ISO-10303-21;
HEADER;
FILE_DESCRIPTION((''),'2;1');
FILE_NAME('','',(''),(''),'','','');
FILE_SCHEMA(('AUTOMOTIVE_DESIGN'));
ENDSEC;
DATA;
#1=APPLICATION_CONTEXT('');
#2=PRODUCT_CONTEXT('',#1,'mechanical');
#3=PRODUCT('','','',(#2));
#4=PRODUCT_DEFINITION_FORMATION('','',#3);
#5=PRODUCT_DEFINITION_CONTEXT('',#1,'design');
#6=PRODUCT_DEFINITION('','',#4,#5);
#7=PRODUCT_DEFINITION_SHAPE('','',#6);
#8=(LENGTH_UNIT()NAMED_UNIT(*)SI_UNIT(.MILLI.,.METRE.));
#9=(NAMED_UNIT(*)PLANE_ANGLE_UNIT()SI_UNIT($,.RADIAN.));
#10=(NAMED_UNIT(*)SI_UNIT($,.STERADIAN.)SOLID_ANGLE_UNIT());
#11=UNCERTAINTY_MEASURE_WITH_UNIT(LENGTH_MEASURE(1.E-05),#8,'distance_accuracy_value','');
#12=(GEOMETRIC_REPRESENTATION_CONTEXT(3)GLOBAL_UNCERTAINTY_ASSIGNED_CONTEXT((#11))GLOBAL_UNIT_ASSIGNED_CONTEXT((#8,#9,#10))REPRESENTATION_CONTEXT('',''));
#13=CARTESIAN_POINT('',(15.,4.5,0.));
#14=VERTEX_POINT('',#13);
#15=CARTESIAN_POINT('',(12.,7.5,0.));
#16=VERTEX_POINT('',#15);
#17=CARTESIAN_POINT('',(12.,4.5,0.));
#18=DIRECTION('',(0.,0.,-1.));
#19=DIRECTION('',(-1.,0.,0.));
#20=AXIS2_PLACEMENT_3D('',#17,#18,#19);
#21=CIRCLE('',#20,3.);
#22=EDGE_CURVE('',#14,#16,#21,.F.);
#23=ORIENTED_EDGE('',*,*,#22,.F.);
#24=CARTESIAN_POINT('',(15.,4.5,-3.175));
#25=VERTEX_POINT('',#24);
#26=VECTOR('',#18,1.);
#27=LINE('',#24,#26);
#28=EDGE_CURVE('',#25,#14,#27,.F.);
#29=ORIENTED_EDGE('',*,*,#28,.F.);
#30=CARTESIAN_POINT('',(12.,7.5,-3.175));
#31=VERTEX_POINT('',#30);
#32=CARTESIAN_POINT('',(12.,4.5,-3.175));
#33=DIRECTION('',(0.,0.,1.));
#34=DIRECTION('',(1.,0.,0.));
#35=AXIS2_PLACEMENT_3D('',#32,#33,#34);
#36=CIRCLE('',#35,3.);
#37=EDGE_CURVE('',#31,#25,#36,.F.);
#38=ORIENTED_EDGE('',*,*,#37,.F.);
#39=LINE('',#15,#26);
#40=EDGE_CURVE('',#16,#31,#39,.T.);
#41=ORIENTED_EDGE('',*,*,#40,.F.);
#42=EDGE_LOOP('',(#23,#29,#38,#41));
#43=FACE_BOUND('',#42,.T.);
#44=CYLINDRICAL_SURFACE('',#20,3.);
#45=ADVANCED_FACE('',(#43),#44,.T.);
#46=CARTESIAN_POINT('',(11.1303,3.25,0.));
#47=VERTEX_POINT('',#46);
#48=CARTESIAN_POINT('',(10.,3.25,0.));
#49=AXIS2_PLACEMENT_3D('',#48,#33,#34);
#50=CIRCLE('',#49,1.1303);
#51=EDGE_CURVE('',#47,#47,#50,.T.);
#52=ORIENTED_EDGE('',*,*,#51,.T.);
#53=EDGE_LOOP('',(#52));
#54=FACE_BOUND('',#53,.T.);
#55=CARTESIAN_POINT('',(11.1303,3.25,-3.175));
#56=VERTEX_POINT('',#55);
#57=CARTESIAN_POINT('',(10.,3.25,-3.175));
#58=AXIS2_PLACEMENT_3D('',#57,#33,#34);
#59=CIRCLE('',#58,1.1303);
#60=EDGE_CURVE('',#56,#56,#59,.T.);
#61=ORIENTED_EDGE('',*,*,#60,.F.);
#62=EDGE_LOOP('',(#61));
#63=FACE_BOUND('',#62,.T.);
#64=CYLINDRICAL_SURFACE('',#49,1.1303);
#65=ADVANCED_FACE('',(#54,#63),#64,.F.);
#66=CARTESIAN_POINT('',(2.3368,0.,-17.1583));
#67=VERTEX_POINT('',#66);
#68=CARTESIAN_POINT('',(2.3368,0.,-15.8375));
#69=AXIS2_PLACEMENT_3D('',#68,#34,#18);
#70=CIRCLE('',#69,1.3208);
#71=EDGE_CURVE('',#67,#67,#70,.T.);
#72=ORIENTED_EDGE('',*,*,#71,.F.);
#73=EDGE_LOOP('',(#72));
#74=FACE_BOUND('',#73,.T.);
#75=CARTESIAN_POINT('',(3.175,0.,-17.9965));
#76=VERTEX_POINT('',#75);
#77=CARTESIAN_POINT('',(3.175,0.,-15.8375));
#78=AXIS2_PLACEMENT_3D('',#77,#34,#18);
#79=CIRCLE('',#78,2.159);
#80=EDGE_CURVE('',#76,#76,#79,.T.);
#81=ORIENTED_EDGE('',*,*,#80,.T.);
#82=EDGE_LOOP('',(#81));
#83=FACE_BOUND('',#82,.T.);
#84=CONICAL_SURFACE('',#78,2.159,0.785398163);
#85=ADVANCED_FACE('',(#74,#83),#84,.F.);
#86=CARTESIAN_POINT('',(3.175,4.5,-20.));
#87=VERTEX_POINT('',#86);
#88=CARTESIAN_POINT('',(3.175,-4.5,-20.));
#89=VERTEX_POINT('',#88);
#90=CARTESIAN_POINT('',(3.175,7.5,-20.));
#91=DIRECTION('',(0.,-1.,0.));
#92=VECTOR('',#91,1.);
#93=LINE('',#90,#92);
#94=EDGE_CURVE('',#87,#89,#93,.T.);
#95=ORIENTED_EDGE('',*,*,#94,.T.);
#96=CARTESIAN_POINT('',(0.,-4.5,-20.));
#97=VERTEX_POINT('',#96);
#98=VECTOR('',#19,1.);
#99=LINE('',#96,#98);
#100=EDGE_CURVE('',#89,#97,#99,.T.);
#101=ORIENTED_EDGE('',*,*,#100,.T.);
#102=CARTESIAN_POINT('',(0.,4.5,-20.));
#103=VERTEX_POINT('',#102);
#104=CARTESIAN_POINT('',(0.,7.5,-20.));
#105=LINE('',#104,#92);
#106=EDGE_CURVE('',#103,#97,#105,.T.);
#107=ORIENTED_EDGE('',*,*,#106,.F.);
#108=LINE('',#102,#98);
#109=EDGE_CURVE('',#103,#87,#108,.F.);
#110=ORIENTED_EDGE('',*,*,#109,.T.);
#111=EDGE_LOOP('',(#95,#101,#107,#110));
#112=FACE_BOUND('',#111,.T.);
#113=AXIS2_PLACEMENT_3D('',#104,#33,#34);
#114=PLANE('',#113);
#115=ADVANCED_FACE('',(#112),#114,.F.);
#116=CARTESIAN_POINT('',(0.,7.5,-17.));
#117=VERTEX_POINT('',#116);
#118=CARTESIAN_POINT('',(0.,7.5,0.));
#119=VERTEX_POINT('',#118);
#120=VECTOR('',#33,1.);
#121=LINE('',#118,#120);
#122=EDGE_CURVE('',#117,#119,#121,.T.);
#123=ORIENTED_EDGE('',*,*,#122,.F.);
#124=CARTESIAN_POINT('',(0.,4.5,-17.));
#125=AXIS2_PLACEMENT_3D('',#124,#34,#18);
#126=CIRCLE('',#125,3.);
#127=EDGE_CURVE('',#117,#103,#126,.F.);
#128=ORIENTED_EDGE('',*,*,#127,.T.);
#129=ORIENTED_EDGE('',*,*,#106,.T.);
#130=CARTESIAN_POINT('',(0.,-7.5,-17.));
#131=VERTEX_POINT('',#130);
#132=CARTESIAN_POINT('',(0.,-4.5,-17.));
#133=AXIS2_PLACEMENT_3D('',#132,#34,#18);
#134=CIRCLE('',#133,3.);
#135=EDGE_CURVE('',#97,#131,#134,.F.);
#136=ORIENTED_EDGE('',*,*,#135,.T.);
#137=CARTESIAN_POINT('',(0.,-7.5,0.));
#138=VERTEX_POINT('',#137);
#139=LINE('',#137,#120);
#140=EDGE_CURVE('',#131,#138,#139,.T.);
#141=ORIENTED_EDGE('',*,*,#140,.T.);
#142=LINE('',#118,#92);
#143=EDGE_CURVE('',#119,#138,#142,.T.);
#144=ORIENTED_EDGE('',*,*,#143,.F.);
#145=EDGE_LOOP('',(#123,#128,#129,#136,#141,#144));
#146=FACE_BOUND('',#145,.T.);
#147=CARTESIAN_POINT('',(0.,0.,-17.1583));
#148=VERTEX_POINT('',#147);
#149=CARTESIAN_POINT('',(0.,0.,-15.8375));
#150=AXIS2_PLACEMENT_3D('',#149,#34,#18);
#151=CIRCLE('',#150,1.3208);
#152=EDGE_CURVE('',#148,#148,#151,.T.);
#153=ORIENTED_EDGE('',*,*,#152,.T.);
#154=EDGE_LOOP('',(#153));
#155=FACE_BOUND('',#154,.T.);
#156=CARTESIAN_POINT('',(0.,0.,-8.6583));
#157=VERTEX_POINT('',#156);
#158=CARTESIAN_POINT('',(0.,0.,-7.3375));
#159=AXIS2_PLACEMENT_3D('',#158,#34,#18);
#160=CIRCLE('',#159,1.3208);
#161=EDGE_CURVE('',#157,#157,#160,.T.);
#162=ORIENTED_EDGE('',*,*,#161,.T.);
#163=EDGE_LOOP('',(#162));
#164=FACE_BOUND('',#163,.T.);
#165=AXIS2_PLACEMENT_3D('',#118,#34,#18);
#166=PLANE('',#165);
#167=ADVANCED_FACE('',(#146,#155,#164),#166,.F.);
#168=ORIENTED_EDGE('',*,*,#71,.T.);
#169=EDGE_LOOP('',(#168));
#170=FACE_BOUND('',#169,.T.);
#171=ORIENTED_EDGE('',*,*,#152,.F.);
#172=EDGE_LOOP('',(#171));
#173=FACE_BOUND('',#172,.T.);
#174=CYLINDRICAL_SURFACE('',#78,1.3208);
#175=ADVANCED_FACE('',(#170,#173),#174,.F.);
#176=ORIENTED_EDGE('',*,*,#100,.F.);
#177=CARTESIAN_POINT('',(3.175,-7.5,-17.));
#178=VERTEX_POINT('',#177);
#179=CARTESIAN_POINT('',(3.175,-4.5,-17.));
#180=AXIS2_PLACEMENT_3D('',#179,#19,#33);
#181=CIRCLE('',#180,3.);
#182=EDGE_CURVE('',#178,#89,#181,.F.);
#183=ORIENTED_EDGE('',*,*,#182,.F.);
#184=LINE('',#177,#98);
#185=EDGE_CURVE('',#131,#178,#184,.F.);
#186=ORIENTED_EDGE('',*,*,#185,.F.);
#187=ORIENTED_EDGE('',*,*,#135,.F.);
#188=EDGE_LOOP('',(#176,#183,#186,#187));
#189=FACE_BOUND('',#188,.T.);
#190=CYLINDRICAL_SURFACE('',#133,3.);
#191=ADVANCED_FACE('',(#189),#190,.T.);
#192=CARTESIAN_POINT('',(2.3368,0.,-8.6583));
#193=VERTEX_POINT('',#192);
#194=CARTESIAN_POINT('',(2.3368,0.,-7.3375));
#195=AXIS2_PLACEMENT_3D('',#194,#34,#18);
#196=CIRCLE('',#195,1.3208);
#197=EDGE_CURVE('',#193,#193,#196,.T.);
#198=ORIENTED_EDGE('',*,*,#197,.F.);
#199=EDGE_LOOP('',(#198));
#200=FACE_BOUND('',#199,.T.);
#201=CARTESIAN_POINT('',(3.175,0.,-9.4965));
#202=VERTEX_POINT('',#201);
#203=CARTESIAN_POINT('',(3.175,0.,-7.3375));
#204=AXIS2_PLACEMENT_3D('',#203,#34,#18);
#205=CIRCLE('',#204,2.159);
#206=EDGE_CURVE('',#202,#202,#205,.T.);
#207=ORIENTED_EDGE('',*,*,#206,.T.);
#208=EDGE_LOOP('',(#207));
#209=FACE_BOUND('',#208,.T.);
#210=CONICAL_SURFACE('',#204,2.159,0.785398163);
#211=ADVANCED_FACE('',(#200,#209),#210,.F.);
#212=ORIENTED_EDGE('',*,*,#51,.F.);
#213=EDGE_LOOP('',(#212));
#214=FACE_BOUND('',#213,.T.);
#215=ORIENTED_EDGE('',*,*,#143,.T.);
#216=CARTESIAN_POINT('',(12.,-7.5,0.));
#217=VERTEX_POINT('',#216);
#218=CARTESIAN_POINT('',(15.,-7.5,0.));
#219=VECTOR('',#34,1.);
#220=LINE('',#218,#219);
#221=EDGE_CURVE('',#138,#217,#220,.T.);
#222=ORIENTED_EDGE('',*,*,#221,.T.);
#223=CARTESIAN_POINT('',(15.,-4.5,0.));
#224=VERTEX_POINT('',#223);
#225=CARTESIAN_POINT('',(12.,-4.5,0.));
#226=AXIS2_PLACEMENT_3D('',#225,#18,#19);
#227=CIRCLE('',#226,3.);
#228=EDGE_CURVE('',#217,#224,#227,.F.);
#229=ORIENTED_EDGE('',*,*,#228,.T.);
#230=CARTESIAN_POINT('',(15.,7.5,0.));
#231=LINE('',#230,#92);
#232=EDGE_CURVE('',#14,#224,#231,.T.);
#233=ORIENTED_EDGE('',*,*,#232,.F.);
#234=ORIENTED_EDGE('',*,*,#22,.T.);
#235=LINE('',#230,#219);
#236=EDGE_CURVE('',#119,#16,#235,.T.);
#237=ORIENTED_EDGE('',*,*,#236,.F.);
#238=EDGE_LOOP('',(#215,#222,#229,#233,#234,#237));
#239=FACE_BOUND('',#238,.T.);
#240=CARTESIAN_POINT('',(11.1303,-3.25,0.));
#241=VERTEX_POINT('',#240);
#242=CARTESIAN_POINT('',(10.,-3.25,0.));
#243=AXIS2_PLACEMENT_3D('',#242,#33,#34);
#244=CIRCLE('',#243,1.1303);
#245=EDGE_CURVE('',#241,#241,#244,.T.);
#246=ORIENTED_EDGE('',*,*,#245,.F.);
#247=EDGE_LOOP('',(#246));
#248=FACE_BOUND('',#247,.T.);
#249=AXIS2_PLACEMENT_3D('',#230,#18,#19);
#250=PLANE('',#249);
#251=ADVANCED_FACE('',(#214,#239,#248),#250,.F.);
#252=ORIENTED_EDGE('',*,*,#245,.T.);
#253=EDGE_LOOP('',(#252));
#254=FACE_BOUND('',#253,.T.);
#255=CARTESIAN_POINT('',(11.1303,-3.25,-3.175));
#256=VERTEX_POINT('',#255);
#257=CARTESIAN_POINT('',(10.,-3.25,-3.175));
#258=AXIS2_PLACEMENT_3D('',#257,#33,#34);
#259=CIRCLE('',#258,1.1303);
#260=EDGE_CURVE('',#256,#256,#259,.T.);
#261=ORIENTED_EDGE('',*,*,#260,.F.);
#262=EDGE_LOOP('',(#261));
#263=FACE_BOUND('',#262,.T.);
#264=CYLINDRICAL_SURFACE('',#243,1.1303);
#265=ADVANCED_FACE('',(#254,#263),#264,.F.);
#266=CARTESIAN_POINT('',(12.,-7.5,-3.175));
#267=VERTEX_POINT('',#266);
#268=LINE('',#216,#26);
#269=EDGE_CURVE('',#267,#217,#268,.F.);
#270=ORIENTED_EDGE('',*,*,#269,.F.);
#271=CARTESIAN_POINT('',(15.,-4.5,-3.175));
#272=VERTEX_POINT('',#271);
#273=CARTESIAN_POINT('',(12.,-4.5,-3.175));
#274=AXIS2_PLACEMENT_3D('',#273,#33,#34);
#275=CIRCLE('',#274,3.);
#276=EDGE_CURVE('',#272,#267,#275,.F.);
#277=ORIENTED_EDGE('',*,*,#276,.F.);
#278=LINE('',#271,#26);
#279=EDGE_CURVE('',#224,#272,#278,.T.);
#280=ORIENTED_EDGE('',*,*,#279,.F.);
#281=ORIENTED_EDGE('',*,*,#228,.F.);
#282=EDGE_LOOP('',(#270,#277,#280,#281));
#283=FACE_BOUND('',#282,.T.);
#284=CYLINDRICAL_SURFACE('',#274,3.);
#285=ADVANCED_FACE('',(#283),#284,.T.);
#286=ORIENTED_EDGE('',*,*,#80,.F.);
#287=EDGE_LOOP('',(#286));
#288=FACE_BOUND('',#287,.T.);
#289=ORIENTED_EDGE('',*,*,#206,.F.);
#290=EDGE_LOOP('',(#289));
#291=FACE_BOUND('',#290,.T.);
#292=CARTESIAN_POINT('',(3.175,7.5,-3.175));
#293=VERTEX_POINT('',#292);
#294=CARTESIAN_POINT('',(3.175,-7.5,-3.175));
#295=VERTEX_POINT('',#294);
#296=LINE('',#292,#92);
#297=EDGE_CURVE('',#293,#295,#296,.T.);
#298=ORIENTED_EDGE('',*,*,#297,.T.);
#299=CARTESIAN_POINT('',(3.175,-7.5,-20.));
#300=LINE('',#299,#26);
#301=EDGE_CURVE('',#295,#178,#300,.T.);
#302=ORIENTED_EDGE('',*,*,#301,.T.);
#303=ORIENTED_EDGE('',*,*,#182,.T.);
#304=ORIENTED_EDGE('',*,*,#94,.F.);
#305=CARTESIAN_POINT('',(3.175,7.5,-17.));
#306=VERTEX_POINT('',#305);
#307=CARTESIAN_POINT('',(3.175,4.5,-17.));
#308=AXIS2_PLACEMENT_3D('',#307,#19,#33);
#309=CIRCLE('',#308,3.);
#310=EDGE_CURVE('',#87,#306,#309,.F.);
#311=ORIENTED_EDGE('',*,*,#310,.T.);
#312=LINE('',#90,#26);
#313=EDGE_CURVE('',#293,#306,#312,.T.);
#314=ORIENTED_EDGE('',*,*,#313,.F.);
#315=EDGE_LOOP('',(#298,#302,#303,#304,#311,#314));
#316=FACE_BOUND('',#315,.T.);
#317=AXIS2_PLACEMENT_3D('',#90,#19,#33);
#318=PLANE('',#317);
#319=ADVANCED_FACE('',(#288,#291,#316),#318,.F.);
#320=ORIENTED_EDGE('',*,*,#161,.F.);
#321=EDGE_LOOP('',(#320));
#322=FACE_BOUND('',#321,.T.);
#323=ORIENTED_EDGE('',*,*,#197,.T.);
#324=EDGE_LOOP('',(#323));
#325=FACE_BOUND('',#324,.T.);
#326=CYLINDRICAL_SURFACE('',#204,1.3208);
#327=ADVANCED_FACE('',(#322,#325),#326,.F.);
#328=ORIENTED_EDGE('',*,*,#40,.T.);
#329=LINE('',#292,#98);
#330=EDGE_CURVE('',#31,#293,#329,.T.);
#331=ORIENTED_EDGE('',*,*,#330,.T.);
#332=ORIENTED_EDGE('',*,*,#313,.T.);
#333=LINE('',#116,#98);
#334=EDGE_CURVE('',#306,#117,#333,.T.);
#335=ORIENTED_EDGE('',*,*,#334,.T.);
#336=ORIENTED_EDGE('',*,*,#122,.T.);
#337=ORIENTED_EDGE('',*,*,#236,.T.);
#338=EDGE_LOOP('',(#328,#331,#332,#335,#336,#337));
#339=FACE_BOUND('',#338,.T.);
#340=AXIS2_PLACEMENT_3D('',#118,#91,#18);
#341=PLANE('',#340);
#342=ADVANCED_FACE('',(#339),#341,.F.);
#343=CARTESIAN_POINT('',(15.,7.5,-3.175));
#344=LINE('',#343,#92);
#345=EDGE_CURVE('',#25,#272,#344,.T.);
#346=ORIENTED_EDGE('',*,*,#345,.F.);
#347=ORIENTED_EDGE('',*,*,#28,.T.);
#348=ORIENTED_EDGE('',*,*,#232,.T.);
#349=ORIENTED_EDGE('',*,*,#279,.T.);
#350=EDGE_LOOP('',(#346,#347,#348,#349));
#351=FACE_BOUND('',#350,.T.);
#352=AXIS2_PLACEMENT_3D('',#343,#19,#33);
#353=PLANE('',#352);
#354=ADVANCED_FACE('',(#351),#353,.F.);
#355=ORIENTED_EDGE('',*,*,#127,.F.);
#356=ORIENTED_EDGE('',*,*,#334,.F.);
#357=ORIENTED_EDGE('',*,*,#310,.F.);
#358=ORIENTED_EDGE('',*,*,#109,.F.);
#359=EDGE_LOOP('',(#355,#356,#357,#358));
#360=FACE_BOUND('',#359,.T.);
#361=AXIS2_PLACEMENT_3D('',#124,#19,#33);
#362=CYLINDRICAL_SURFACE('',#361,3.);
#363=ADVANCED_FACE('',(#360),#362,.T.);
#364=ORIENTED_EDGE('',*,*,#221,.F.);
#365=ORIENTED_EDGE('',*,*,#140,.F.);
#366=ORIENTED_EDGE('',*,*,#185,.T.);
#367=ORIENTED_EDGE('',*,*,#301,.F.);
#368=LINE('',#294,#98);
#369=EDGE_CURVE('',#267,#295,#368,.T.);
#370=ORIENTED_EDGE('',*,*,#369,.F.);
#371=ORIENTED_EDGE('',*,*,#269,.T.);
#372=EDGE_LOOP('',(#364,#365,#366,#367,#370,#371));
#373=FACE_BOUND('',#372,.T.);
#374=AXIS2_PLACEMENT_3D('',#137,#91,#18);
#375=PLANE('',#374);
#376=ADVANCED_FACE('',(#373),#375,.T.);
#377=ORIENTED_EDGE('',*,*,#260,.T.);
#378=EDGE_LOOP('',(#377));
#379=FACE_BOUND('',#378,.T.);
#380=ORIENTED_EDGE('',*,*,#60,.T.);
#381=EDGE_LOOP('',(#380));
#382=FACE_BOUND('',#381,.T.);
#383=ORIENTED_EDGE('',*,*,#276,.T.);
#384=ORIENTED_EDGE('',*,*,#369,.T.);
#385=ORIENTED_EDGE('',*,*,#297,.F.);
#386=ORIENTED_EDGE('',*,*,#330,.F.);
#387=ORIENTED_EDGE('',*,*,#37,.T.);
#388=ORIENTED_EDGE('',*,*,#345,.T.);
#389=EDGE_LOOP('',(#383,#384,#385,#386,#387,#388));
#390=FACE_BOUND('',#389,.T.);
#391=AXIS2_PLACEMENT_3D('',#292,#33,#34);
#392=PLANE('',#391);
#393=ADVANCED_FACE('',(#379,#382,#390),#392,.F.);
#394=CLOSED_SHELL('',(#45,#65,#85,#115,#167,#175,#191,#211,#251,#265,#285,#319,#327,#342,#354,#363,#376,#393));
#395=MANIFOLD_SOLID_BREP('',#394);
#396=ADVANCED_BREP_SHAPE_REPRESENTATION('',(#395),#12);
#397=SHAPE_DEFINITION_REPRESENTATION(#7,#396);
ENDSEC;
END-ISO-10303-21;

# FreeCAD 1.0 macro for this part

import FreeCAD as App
import Part
import Sketcher
from FreeCAD import Vector
Q = App.Units.Quantity


def edges_at(feature, points):
    """Names of the edges that pass closest to the given points."""
    edges = feature.Shape.Edges
    near = lambda p: min(range(len(edges)), key=lambda i: edges[i].distToShape(Part.Vertex(*p))[0])
    return sorted({f"Edge{near(p) + 1}" for p in points})

doc = App.newDocument("Part")
body = doc.addObject("PartDesign::Body", "Body")

# Sketch on XZ plane
sketch1 = body.newObject("Sketcher::SketchObject", "Sketch")
sketch1.AttachmentSupport = (doc.getObject("XZ_Plane"), [""])
sketch1.MapMode = "FlatFace"
sketch1.addGeometry(Part.LineSegment(Vector(0, -20, 0), Vector(0, 0, 0)), False)
sketch1.addGeometry(Part.LineSegment(Vector(0, 0, 0), Vector(15, 0, 0)), False)
sketch1.addGeometry(Part.LineSegment(Vector(15, 0, 0), Vector(15, -3.2, 0)), False)
sketch1.addGeometry(Part.LineSegment(Vector(15, -3.2, 0), Vector(3.2, -3.2, 0)), False)
sketch1.addGeometry(Part.LineSegment(Vector(3.2, -3.2, 0), Vector(3.2, -20, 0)), False)
sketch1.addGeometry(Part.LineSegment(Vector(3.2, -20, 0), Vector(0, -20, 0)), False)
sketch1.addConstraint(Sketcher.Constraint("Coincident", 0, 2, 1, 1))
sketch1.addConstraint(Sketcher.Constraint("Coincident", 1, 2, 2, 1))
sketch1.addConstraint(Sketcher.Constraint("Coincident", 2, 2, 3, 1))
sketch1.addConstraint(Sketcher.Constraint("Coincident", 3, 2, 4, 1))
sketch1.addConstraint(Sketcher.Constraint("Coincident", 4, 2, 5, 1))
sketch1.addConstraint(Sketcher.Constraint("Coincident", 5, 2, 0, 1))
sketch1.addConstraint(Sketcher.Constraint("Vertical", 0))
sketch1.addConstraint(Sketcher.Constraint("Horizontal", 1))
sketch1.addConstraint(Sketcher.Constraint("Vertical", 2))
sketch1.addConstraint(Sketcher.Constraint("Horizontal", 3))
sketch1.addConstraint(Sketcher.Constraint("Vertical", 4))
sketch1.addConstraint(Sketcher.Constraint("Horizontal", 5))
sketch1.addConstraint(Sketcher.Constraint("Coincident", 0, 2, -1, 1))
sketch1.addConstraint(Sketcher.Constraint("Equal", 5, 2))
sketch1.addConstraint(Sketcher.Constraint("DistanceX", 1, 1, 1, 2, Q("15 mm")))
sketch1.addConstraint(Sketcher.Constraint("DistanceY", 0, 1, 0, 2, Q("20 mm")))
sketch1.addConstraint(Sketcher.Constraint("DistanceX", 3, 2, 3, 1, Q("11.825 mm")))
pad1 = body.newObject("PartDesign::Pad", "Pad")
pad1.Profile = sketch1
pad1.Length = 15
pad1.Midplane = True

# Sketch on XY plane
sketch2 = body.newObject("Sketcher::SketchObject", "Sketch001")
sketch2.AttachmentSupport = (doc.getObject("XY_Plane"), [""])
sketch2.MapMode = "FlatFace"
sketch2.addGeometry(Part.Circle(Vector(10, -3.2, 0), Vector(0, 0, 1), 1.1), False)
sketch2.addGeometry(Part.Circle(Vector(10, 3.2, 0), Vector(0, 0, 1), 1.1), False)
sketch2.addConstraint(Sketcher.Constraint("Equal", 0, 1))
sketch2.addConstraint(Sketcher.Constraint("Symmetric", 0, 3, 1, 3, -1))
sketch2.addConstraint(Sketcher.Constraint("DistanceX", -1, 1, 0, 3, Q("10 mm")))
sketch2.addConstraint(Sketcher.Constraint("Diameter", 0, Q("2.2606 mm")))
sketch2.addConstraint(Sketcher.Constraint("DistanceY", 0, 3, 1, 3, Q("6.5 mm")))
doc.recompute()
hole = body.newObject("PartDesign::Hole", "Hole")
hole.Profile = sketch2
hole.ThreadType = "None"
hole.Diameter = 2.2606
hole.DepthType = "ThroughAll"

# Sketch on YZ plane
sketch3 = body.newObject("Sketcher::SketchObject", "Sketch002")
sketch3.AttachmentSupport = (doc.getObject("YZ_Plane"), [""])
sketch3.MapMode = "FlatFace"
sketch3.AttachmentOffset = App.Placement(Vector(0, 0, 3.175), App.Rotation())
sketch3.addGeometry(Part.Circle(Vector(0, -7.3, 0), Vector(0, 0, 1), 1.3), False)
sketch3.addGeometry(Part.Circle(Vector(0, -15.8, 0), Vector(0, 0, 1), 1.3), False)
sketch3.addConstraint(Sketcher.Constraint("Equal", 0, 1))
sketch3.addConstraint(Sketcher.Constraint("PointOnObject", 0, 3, -2))
sketch3.addConstraint(Sketcher.Constraint("PointOnObject", 1, 3, -2))
sketch3.addConstraint(Sketcher.Constraint("Diameter", 0, Q("2.6416 mm")))
sketch3.addConstraint(Sketcher.Constraint("DistanceY", 1, 3, 0, 3, Q("8.5 mm")))
sketch3.addConstraint(Sketcher.Constraint("DistanceY", 0, 3, -1, 1, Q("7.3375 mm")))
doc.recompute()
hole2 = body.newObject("PartDesign::Hole", "Hole001")
hole2.Profile = sketch3
hole2.ThreadType = "None"
hole2.Diameter = 2.6416
hole2.DepthType = "ThroughAll"
hole2.HoleCutType = "Countersink"
hole2.HoleCutDiameter = 4.318
hole2.HoleCutCountersinkAngle = 90
doc.recompute()

fillet = body.newObject("PartDesign::Fillet", "Fillet")
fillet.Base = (hole2, edges_at(hole2, [
    (1.587, 7.5, -20),
    (1.587, -7.5, -20),
    (15, -7.5, -1.587),
    (15, 7.5, -1.587),
]))
fillet.Radius = 3

doc.recompute()
